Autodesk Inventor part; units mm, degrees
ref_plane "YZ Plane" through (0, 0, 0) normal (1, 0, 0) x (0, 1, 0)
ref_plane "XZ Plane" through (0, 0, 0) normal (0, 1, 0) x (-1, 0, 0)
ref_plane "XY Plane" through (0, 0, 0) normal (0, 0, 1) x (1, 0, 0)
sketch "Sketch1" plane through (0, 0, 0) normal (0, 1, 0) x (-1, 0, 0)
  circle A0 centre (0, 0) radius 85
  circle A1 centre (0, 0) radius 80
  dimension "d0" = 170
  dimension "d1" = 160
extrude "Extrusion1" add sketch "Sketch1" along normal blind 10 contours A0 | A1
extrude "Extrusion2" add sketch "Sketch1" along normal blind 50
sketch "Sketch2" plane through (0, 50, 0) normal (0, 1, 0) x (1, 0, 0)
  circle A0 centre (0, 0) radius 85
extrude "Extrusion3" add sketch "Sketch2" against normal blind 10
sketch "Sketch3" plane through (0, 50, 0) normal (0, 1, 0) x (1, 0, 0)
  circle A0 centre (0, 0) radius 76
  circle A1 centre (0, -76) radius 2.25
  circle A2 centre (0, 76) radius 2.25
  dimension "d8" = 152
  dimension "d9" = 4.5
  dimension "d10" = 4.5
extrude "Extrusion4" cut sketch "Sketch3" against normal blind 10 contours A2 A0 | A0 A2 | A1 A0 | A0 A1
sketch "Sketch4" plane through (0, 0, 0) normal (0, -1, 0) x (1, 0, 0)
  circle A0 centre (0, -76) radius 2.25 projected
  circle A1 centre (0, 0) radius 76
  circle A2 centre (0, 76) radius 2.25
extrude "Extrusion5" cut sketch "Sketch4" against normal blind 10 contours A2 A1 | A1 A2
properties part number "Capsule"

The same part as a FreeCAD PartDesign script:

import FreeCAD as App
import Part
import Sketcher

V = App.Vector

doc = App.newDocument("Part")
params = doc.addObject("Spreadsheet::Sheet", "Params")
for row, (alias, value) in enumerate([
    ("sketch1_diameter", "170 mm"),
    ("pad1_length", "10 mm"),
    ("sketch2_diameter", "170 mm"),
    ("sketch2_diameter2", "160 mm"),
    ("pad2_length", "50 mm"),
    ("sketch3_diameter", "170 mm"),
    ("pad3_length", "10 mm"),
    ("sketch4_diameter", "4.5 mm"),
    ("pocket1_length", "10 mm"),
    ("sketch5_diameter", "4.5 mm"),
    ("pocket2_length", "10 mm"),
], start=1):
    params.set(f"A{row}", alias)
    params.set(f"B{row}", "=" + value)
    params.setAlias(f"B{row}", alias)

body = doc.addObject("PartDesign::Body", "Body")

# Sketch on XZ plane
sketch1 = doc.addObject("Sketcher::SketchObject", "Sketch")
body.addObject(sketch1)
sketch1.AttachmentSupport = (doc.XZ_Plane, [""])
sketch1.MapMode = "FlatFace"
sketch1.addGeometry(Part.Circle(V(0, 0, 0), V(0, 0, 1), 85), False)
sketch1.addConstraint(Sketcher.Constraint("Coincident", 0, 3, -1, 1))
sketch1.addConstraint(Sketcher.Constraint("Diameter", 0, 170.0))
sketch1.setExpression("Constraints[1]", "Params.sketch1_diameter")
pad1 = doc.addObject("PartDesign::Pad", "Pad")
body.addObject(pad1)
pad1.Profile = sketch1
pad1.setExpression("Length", "Params.pad1_length")
pad1.Reversed = True

# Sketch on XZ plane
sketch2 = doc.addObject("Sketcher::SketchObject", "Sketch001")
body.addObject(sketch2)
sketch2.AttachmentSupport = (doc.XZ_Plane, [""])
sketch2.MapMode = "FlatFace"
sketch2.addGeometry(Part.Circle(V(0, 0, 0), V(0, 0, 1), 85), False)
sketch2.addGeometry(Part.Circle(V(0, 0, 0), V(0, 0, 1), 80), False)
sketch2.addConstraint(Sketcher.Constraint("Coincident", 0, 3, -1, 1))
sketch2.addConstraint(Sketcher.Constraint("Coincident", 1, 3, -1, 1))
sketch2.addConstraint(Sketcher.Constraint("Diameter", 0, 170.0))
sketch2.addConstraint(Sketcher.Constraint("Diameter", 1, 160.0))
sketch2.setExpression("Constraints[2]", "Params.sketch2_diameter")
sketch2.setExpression("Constraints[3]", "Params.sketch2_diameter2")
pad2 = doc.addObject("PartDesign::Pad", "Pad001")
body.addObject(pad2)
pad2.Profile = sketch2
pad2.setExpression("Length", "Params.pad2_length")
pad2.Reversed = True

# Sketch on XZ plane
sketch3 = doc.addObject("Sketcher::SketchObject", "Sketch002")
body.addObject(sketch3)
sketch3.AttachmentSupport = (doc.XZ_Plane, [""])
sketch3.MapMode = "FlatFace"
sketch3.AttachmentOffset = App.Placement(V(0, 0, -50), App.Rotation())
sketch3.addGeometry(Part.Circle(V(0, 0, 0), V(0, 0, 1), 85), False)
sketch3.addConstraint(Sketcher.Constraint("Coincident", 0, 3, -1, 1))
sketch3.addConstraint(Sketcher.Constraint("Diameter", 0, 170.0))
sketch3.setExpression("Constraints[1]", "Params.sketch3_diameter")
pad3 = doc.addObject("PartDesign::Pad", "Pad002")
body.addObject(pad3)
pad3.Profile = sketch3
pad3.setExpression("Length", "Params.pad3_length")

# Sketch on XZ plane
sketch4 = doc.addObject("Sketcher::SketchObject", "Sketch003")
body.addObject(sketch4)
sketch4.AttachmentSupport = (doc.XZ_Plane, [""])
sketch4.MapMode = "FlatFace"
sketch4.AttachmentOffset = App.Placement(V(0, 0, -50), App.Rotation())
sketch4.addGeometry(Part.Circle(V(0, -76, 0), V(0, 0, 1), 2.2), False)
sketch4.addGeometry(Part.Circle(V(0, 76, 0), V(0, 0, 1), 2.2), False)
sketch4.addConstraint(Sketcher.Constraint("Equal", 0, 1))
sketch4.addConstraint(Sketcher.Constraint("Symmetric", 0, 3, 1, 3, -1, 1))
sketch4.addConstraint(Sketcher.Constraint("PointOnObject", 0, 3, -2))
sketch4.addConstraint(Sketcher.Constraint("Diameter", 0, 4.5))
sketch4.addConstraint(Sketcher.Constraint("DistanceY", 0, 3, 1, 3, 152.0))
sketch4.setExpression("Constraints[3]", "Params.sketch4_diameter")
pocket1 = doc.addObject("PartDesign::Pocket", "Pocket")
body.addObject(pocket1)
pocket1.Profile = sketch4
pocket1.setExpression("Length", "Params.pocket1_length")
pocket1.Reversed = True

# Sketch on XZ plane
sketch5 = doc.addObject("Sketcher::SketchObject", "Sketch004")
body.addObject(sketch5)
sketch5.AttachmentSupport = (doc.XZ_Plane, [""])
sketch5.MapMode = "FlatFace"
sketch5.addGeometry(Part.Circle(V(0, 76, 0), V(0, 0, 1), 2.2), False)
sketch5.addConstraint(Sketcher.Constraint("PointOnObject", 0, 3, -2))
sketch5.addConstraint(Sketcher.Constraint("Diameter", 0, 4.5))
sketch5.addConstraint(Sketcher.Constraint("DistanceY", -1, 1, 0, 3, 76.0))
sketch5.setExpression("Constraints[1]", "Params.sketch5_diameter")
pocket2 = doc.addObject("PartDesign::Pocket", "Pocket001")
body.addObject(pocket2)
pocket2.Profile = sketch5
pocket2.setExpression("Length", "Params.pocket2_length")

doc.recompute()
